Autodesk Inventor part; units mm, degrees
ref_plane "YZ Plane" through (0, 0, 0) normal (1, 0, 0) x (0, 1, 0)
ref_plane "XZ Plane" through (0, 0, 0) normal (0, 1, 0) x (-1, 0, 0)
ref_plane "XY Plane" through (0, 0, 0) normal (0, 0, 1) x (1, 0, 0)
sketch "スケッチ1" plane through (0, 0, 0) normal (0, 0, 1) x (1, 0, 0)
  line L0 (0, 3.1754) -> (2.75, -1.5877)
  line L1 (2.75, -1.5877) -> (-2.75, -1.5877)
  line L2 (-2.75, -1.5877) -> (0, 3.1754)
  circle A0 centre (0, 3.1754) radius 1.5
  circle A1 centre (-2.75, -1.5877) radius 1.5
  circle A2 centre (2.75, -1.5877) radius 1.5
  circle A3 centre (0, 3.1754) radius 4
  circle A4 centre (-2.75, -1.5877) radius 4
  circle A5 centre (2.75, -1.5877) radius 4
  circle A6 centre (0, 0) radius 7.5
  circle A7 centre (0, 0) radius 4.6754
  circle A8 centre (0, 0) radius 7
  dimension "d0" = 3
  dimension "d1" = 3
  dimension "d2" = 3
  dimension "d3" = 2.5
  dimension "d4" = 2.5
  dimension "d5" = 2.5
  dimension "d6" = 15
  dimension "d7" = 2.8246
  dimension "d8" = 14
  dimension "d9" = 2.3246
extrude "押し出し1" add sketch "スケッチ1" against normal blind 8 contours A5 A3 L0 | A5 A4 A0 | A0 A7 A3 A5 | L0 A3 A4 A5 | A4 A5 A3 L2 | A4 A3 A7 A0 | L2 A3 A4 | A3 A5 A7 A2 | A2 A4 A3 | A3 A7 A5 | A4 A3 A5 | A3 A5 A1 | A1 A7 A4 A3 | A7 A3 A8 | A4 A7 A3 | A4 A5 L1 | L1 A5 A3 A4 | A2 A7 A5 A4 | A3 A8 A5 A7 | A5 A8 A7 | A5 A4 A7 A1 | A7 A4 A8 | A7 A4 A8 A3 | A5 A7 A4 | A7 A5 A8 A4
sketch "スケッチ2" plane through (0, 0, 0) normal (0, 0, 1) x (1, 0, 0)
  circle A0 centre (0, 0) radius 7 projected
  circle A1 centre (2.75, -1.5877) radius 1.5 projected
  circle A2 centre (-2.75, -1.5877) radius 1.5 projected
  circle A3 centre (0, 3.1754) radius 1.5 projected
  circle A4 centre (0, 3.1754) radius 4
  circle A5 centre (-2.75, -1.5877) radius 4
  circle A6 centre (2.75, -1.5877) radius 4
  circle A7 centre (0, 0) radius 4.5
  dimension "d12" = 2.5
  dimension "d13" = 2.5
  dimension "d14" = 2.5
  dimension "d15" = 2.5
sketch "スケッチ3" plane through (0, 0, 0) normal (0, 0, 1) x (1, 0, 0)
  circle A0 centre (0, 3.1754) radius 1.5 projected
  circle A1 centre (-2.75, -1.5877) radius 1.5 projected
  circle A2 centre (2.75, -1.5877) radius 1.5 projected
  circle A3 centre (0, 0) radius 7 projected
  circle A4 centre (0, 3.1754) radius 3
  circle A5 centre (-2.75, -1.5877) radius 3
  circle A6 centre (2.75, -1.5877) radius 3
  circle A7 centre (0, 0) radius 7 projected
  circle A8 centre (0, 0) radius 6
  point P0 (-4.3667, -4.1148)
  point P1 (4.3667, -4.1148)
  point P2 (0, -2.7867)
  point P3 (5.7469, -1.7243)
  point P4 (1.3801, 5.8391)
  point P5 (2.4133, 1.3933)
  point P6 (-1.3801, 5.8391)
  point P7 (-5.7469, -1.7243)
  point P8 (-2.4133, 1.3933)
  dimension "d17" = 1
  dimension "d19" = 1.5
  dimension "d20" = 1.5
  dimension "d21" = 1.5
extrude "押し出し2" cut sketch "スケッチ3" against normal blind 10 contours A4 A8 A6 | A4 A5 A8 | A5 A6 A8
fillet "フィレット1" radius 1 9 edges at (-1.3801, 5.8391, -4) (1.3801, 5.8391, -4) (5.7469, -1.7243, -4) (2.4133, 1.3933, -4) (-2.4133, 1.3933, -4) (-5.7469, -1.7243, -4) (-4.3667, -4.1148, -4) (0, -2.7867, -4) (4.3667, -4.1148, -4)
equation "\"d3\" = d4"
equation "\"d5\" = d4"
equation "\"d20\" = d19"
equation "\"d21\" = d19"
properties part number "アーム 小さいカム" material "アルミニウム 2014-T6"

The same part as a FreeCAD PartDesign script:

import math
import FreeCAD as App
import Part
import Sketcher
from FreeCAD import Vector
Q = App.Units.Quantity


def edges_at(feature, points):
    """Names of the edges that pass closest to the given points."""
    edges = feature.Shape.Edges
    near = lambda p: min(range(len(edges)), key=lambda i: edges[i].distToShape(Part.Vertex(*p))[0])
    return sorted({f"Edge{near(p) + 1}" for p in points})

doc = App.newDocument("Part")
params = doc.addObject("Spreadsheet::Sheet", "Params")
for row, (alias, value) in enumerate([
    ("sketch1_diameter", "14 mm"),
    ("sketch1_diameter2", "3 mm"),
    ("pad1_length", "8 mm"),
    ("sketch2_radius", "3 mm"),
    ("sketch2_radius2", "6 mm"),
    ("pocket1_length", "10 mm"),
    ("fillet_radius", "1 mm"),
], start=1):
    params.set(f"A{row}", alias)
    params.set(f"B{row}", "=" + value)
    params.setAlias(f"B{row}", alias)

body = doc.addObject("PartDesign::Body", "Body")

sketch1 = body.newObject("Sketcher::SketchObject", "Sketch")
sketch1.AttachmentSupport = (doc.getObject("XY_Plane"), [""])
sketch1.MapMode = "FlatFace"
sketch1.addGeometry([
    Part.Circle(Vector(0, 0, 0), Vector(0, 0, 1), 7),
    Part.Circle(Vector(0, 3.2, 0), Vector(0, 0, 1), 1.5),
    Part.Circle(Vector(2.8, -1.6, 0), Vector(0, 0, 1), 1.5),
    Part.Circle(Vector(-2.8, -1.6, 0), Vector(0, 0, 1), 1.5),
], False)
sketch1.addConstraint([
    Sketcher.Constraint("Coincident", 0, 3, -1, 1),
    Sketcher.Constraint("Equal", 1, 2),
    Sketcher.Constraint("Equal", 2, 3),
    Sketcher.Constraint("Symmetric", 2, 3, 3, 3, -2),
    Sketcher.Constraint("PointOnObject", 1, 3, -2),
    Sketcher.Constraint("Diameter", 0, Q("14 mm")),
    Sketcher.Constraint("Diameter", 1, Q("3 mm")),
    Sketcher.Constraint("DistanceX", 3, 3, 2, 3, Q("5.5 mm")),
    Sketcher.Constraint("DistanceY", 2, 3, 1, 3, Q("4.763 mm")),
    Sketcher.Constraint("DistanceY", -1, 1, 1, 3, Q("3.1754 mm")),
])
sketch1.setExpression("Constraints[5]", "Params.sketch1_diameter")
sketch1.setExpression("Constraints[6]", "Params.sketch1_diameter2")
pad1 = body.newObject("PartDesign::Pad", "Pad")
pad1.Profile = sketch1
pad1.setExpression("Length", "Params.pad1_length")
pad1.Reversed = True

sketch2 = body.newObject("Sketcher::SketchObject", "Sketch001")
sketch2.AttachmentSupport = (doc.getObject("XY_Plane"), [""])
sketch2.MapMode = "FlatFace"
sketch2.addGeometry([
    Part.ArcOfCircle(Part.Circle(Vector(0, 3.2, 0), Vector(0, 0, 1), 3), math.radians(-36), math.radians(63)),
    Part.ArcOfCircle(Part.Circle(Vector(2.8, -1.6, 0), Vector(0, 0, 1), 3), math.radians(-3), math.radians(96)),
    Part.ArcOfCircle(Part.Circle(Vector(0, 0, 0), Vector(0, 0, 1), 6), math.radians(-17), math.radians(77)),
    Part.ArcOfCircle(Part.Circle(Vector(0, 3.2, 0), Vector(0, 0, 1), 3), math.radians(117), math.radians(216)),
    Part.ArcOfCircle(Part.Circle(Vector(0, 0, 0), Vector(0, 0, 1), 6), math.radians(103), math.radians(197)),
    Part.ArcOfCircle(Part.Circle(Vector(-2.8, -1.6, 0), Vector(0, 0, 1), 3), math.radians(84), math.radians(183)),
    Part.ArcOfCircle(Part.Circle(Vector(-2.8, -1.6, 0), Vector(0, 0, 1), 3), math.radians(-123), math.radians(-24)),
    Part.ArcOfCircle(Part.Circle(Vector(0, 0, 0), Vector(0, 0, 1), 6), math.radians(-137), math.radians(-43)),
    Part.ArcOfCircle(Part.Circle(Vector(2.8, -1.6, 0), Vector(0, 0, 1), 3), math.radians(-156), math.radians(-57)),
], False)
sketch2.addConstraint([
    Sketcher.Constraint("Coincident", 0, 1, 1, 2),
    Sketcher.Constraint("Coincident", 1, 1, 2, 1),
    Sketcher.Constraint("Coincident", 2, 2, 0, 2),
    Sketcher.Constraint("Coincident", 3, 1, 4, 1),
    Sketcher.Constraint("Coincident", 4, 2, 5, 2),
    Sketcher.Constraint("Coincident", 5, 1, 3, 2),
    Sketcher.Constraint("Coincident", 6, 1, 7, 1),
    Sketcher.Constraint("Coincident", 7, 2, 8, 2),
    Sketcher.Constraint("Coincident", 8, 1, 6, 2),
    Sketcher.Constraint("Coincident", 2, 3, -1, 1),
    Sketcher.Constraint("Coincident", 4, 3, -1, 1),
    Sketcher.Constraint("Coincident", 7, 3, -1, 1),
    Sketcher.Constraint("Coincident", 3, 3, 0, 3),
    Sketcher.Constraint("Coincident", 6, 3, 5, 3),
    Sketcher.Constraint("Coincident", 8, 3, 1, 3),
    Sketcher.Constraint("Equal", 0, 1),
    Sketcher.Constraint("Equal", 1, 3),
    Sketcher.Constraint("Equal", 2, 4),
    Sketcher.Constraint("Equal", 3, 5),
    Sketcher.Constraint("Equal", 5, 6),
    Sketcher.Constraint("Equal", 4, 7),
    Sketcher.Constraint("Equal", 6, 8),
    Sketcher.Constraint("Symmetric", 1, 3, 5, 3, -2),
    Sketcher.Constraint("PointOnObject", 0, 3, -2),
    Sketcher.Constraint("Radius", 0, Q("3 mm")),
    Sketcher.Constraint("Radius", 2, Q("6 mm")),
    Sketcher.Constraint("DistanceX", 5, 3, 1, 3, Q("5.5 mm")),
    Sketcher.Constraint("DistanceX", -1, 1, 2, 2, Q("1.38 mm")),
    Sketcher.Constraint("DistanceX", 4, 2, 6, 1, Q("1.38 mm")),
])
sketch2.setExpression("Constraints[24]", "Params.sketch2_radius")
sketch2.setExpression("Constraints[25]", "Params.sketch2_radius2")
pocket1 = body.newObject("PartDesign::Pocket", "Pocket")
pocket1.Profile = sketch2
pocket1.setExpression("Length", "Params.pocket1_length")
doc.recompute()

fillet = body.newObject("PartDesign::Fillet", "Fillet")
fillet.Base = (pocket1, edges_at(pocket1, [
    (-1.38, 5.839, -4),
    (1.38, 5.839, -4),
    (5.747, -1.724, -4),
    (2.413, 1.393, -4),
    (-2.413, 1.393, -4),
    (-5.747, -1.724, -4),
    (-4.367, -4.115, -4),
    (0, -2.787, -4),
    (4.367, -4.115, -4),
]))
fillet.setExpression("Radius", "Params.fillet_radius")

doc.recompute()
